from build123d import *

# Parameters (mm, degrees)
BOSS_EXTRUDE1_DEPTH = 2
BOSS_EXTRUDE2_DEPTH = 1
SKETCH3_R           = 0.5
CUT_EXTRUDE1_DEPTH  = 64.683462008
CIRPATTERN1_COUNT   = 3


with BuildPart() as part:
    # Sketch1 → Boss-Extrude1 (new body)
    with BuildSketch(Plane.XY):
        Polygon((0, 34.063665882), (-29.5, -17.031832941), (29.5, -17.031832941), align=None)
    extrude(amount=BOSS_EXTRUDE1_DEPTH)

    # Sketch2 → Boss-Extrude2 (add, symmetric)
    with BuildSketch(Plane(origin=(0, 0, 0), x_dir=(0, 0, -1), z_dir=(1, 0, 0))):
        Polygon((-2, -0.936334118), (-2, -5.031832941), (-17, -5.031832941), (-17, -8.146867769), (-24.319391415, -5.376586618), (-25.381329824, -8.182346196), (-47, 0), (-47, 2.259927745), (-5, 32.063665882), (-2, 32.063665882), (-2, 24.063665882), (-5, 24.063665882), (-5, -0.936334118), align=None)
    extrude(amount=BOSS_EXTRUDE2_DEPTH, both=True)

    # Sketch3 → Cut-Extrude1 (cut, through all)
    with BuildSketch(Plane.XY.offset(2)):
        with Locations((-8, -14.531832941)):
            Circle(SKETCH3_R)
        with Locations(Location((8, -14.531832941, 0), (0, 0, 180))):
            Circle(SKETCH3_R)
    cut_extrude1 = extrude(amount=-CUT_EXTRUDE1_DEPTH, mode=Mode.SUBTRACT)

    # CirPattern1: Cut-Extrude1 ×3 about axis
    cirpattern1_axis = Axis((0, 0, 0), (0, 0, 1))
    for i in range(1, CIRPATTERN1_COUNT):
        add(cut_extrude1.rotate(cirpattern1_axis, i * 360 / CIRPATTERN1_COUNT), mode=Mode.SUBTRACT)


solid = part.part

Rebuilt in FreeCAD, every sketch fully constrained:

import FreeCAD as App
import Part
import Sketcher

V = App.Vector
Q = App.Units.Quantity


def add_polygon(sketch, points):
    """Adds a closed chain of lines whose ends are joined by coincident constraints."""
    first, n = sketch.GeometryCount, len(points)
    for a, b in zip(points, points[1:] + points[:1]):
        sketch.addGeometry(Part.LineSegment(App.Vector(*a, 0), App.Vector(*b, 0)), False)
    for i in range(n):
        sketch.addConstraint(Sketcher.Constraint("Coincident", first + i, 2, first + (i + 1) % n, 1))

doc = App.newDocument("Part")
body = doc.addObject("PartDesign::Body", "Body")

# Sketch on XY plane
sketch1 = body.newObject("Sketcher::SketchObject", "Sketch")
sketch1.AttachmentSupport = (doc.getObject("XY_Plane"), [""])
sketch1.MapMode = "FlatFace"
add_polygon(sketch1, [(0, 34.063666), (-29.5, -17.031833), (29.5, -17.031833)])  # lines 0-2
sketch1.addConstraint([
    Sketcher.Constraint("Horizontal", 1),
    Sketcher.Constraint("PointOnObject", 2, 2, -2),
    Sketcher.Constraint("Equal", 0, 2),
    Sketcher.Constraint("DistanceX", 1, 1, 1, 2, 59.0),
    Sketcher.Constraint("Angle", 0, Q("-120 deg")),
    Sketcher.Constraint("DistanceY", 0, 2, -1, 1, 17.031833),
])
pad1 = body.newObject("PartDesign::Pad", "Pad")
pad1.Profile = sketch1
pad1.Length = 2

# Sketch on YZ plane
sketch2 = body.newObject("Sketcher::SketchObject", "Sketch001")
sketch2.AttachmentSupport = (doc.getObject("YZ_Plane"), [""])
sketch2.MapMode = "FlatFace"
add_polygon(sketch2, [(-5.031833, 2), (-0.936334, 2), (-0.936334, 5), (24.063666, 5), (24.063666, 2), (32.063666, 2), (32.063666, 5), (2.259928, 47), (0, 47), (-8.182346, 25.38133), (-5.376587, 24.319391), (-8.146868, 17), (-5.031833, 17)])  # lines 0-12
sketch2.addConstraint([
    Sketcher.Constraint("Horizontal", 0),
    Sketcher.Constraint("Vertical", 1),
    Sketcher.Constraint("Horizontal", 2),
    Sketcher.Constraint("Vertical", 3),
    Sketcher.Constraint("Horizontal", 4),
    Sketcher.Constraint("Vertical", 5),
    Sketcher.Constraint("Horizontal", 7),
    Sketcher.Constraint("Horizontal", 11),
    Sketcher.Constraint("Vertical", 12),
    Sketcher.Constraint("PointOnObject", 7, 2, -2),
    Sketcher.Constraint("Perpendicular", 8, 9),
    Sketcher.Constraint("Perpendicular", 9, 10),
    Sketcher.Constraint("Horizontal", 0, 2, 3, 2),
    Sketcher.Constraint("Horizontal", 2, 2, 5, 2),
    Sketcher.Constraint("DistanceX", 2, 1, 2, 2, 25.0),
    Sketcher.Constraint("DistanceX", 4, 1, 4, 2, 8.0),
    Sketcher.Constraint("DistanceY", 1, 1, 1, 2, 3.0),
    Sketcher.Constraint("DistanceY", 12, 2, 12, 1, 15.0),
    Sketcher.Constraint("Distance", 9, 3.0),
    Sketcher.Constraint("DistanceY", -1, 1, 0, 2, 2.0),
    Sketcher.Constraint("DistanceY", -1, 1, 6, 2, 47.0),
    Sketcher.Constraint("Angle", 6, Q("125.36 deg")),
    Sketcher.Constraint("DistanceX", 0, 1, 0, 2, 4.095499),
    Sketcher.Constraint("DistanceX", 7, 2, 7, 1, 2.259928),
    Sketcher.Constraint("DistanceX", 11, 1, 11, 2, 3.115035),
    Sketcher.Constraint("DistanceY", -1, 1, 8, 2, 25.38133),
])
pad2 = body.newObject("PartDesign::Pad", "Pad001")
pad2.Profile = sketch2
pad2.Length = 2
pad2.Midplane = True

# Sketch on XY plane
sketch3 = body.newObject("Sketcher::SketchObject", "Sketch002")
sketch3.AttachmentSupport = (doc.getObject("XY_Plane"), [""])
sketch3.MapMode = "FlatFace"
sketch3.AttachmentOffset = App.Placement(V(0, 0, 2), App.Rotation())
sketch3.addGeometry([
    Part.Circle(V(-8, -14.531833, 0), V(0, 0, 1), 0.5),
    Part.Circle(V(8, -14.531833, 0), V(0, 0, 1), 0.5),
], False)
sketch3.addConstraint([
    Sketcher.Constraint("Equal", 0, 1),
    Sketcher.Constraint("Symmetric", 0, 3, 1, 3, -2),
    Sketcher.Constraint("Diameter", 0, 1.0),
    Sketcher.Constraint("DistanceX", 0, 3, -1, 1, 8.0),
    Sketcher.Constraint("DistanceY", 0, 3, -1, 1, 14.531833),
])
pocket1 = body.newObject("PartDesign::Pocket", "Pocket")
pocket1.Profile = sketch3
pocket1.Type = "ThroughAll"
doc.recompute()

polarpattern = body.newObject("PartDesign::PolarPattern", "PolarPattern")
polarpattern.Originals = [pocket1]
polarpattern.Axis = (doc.getObject("Z_Axis"), [""])
polarpattern.Angle = 360
polarpattern.Occurrences = 3
body.Tip = polarpattern

doc.recompute()
